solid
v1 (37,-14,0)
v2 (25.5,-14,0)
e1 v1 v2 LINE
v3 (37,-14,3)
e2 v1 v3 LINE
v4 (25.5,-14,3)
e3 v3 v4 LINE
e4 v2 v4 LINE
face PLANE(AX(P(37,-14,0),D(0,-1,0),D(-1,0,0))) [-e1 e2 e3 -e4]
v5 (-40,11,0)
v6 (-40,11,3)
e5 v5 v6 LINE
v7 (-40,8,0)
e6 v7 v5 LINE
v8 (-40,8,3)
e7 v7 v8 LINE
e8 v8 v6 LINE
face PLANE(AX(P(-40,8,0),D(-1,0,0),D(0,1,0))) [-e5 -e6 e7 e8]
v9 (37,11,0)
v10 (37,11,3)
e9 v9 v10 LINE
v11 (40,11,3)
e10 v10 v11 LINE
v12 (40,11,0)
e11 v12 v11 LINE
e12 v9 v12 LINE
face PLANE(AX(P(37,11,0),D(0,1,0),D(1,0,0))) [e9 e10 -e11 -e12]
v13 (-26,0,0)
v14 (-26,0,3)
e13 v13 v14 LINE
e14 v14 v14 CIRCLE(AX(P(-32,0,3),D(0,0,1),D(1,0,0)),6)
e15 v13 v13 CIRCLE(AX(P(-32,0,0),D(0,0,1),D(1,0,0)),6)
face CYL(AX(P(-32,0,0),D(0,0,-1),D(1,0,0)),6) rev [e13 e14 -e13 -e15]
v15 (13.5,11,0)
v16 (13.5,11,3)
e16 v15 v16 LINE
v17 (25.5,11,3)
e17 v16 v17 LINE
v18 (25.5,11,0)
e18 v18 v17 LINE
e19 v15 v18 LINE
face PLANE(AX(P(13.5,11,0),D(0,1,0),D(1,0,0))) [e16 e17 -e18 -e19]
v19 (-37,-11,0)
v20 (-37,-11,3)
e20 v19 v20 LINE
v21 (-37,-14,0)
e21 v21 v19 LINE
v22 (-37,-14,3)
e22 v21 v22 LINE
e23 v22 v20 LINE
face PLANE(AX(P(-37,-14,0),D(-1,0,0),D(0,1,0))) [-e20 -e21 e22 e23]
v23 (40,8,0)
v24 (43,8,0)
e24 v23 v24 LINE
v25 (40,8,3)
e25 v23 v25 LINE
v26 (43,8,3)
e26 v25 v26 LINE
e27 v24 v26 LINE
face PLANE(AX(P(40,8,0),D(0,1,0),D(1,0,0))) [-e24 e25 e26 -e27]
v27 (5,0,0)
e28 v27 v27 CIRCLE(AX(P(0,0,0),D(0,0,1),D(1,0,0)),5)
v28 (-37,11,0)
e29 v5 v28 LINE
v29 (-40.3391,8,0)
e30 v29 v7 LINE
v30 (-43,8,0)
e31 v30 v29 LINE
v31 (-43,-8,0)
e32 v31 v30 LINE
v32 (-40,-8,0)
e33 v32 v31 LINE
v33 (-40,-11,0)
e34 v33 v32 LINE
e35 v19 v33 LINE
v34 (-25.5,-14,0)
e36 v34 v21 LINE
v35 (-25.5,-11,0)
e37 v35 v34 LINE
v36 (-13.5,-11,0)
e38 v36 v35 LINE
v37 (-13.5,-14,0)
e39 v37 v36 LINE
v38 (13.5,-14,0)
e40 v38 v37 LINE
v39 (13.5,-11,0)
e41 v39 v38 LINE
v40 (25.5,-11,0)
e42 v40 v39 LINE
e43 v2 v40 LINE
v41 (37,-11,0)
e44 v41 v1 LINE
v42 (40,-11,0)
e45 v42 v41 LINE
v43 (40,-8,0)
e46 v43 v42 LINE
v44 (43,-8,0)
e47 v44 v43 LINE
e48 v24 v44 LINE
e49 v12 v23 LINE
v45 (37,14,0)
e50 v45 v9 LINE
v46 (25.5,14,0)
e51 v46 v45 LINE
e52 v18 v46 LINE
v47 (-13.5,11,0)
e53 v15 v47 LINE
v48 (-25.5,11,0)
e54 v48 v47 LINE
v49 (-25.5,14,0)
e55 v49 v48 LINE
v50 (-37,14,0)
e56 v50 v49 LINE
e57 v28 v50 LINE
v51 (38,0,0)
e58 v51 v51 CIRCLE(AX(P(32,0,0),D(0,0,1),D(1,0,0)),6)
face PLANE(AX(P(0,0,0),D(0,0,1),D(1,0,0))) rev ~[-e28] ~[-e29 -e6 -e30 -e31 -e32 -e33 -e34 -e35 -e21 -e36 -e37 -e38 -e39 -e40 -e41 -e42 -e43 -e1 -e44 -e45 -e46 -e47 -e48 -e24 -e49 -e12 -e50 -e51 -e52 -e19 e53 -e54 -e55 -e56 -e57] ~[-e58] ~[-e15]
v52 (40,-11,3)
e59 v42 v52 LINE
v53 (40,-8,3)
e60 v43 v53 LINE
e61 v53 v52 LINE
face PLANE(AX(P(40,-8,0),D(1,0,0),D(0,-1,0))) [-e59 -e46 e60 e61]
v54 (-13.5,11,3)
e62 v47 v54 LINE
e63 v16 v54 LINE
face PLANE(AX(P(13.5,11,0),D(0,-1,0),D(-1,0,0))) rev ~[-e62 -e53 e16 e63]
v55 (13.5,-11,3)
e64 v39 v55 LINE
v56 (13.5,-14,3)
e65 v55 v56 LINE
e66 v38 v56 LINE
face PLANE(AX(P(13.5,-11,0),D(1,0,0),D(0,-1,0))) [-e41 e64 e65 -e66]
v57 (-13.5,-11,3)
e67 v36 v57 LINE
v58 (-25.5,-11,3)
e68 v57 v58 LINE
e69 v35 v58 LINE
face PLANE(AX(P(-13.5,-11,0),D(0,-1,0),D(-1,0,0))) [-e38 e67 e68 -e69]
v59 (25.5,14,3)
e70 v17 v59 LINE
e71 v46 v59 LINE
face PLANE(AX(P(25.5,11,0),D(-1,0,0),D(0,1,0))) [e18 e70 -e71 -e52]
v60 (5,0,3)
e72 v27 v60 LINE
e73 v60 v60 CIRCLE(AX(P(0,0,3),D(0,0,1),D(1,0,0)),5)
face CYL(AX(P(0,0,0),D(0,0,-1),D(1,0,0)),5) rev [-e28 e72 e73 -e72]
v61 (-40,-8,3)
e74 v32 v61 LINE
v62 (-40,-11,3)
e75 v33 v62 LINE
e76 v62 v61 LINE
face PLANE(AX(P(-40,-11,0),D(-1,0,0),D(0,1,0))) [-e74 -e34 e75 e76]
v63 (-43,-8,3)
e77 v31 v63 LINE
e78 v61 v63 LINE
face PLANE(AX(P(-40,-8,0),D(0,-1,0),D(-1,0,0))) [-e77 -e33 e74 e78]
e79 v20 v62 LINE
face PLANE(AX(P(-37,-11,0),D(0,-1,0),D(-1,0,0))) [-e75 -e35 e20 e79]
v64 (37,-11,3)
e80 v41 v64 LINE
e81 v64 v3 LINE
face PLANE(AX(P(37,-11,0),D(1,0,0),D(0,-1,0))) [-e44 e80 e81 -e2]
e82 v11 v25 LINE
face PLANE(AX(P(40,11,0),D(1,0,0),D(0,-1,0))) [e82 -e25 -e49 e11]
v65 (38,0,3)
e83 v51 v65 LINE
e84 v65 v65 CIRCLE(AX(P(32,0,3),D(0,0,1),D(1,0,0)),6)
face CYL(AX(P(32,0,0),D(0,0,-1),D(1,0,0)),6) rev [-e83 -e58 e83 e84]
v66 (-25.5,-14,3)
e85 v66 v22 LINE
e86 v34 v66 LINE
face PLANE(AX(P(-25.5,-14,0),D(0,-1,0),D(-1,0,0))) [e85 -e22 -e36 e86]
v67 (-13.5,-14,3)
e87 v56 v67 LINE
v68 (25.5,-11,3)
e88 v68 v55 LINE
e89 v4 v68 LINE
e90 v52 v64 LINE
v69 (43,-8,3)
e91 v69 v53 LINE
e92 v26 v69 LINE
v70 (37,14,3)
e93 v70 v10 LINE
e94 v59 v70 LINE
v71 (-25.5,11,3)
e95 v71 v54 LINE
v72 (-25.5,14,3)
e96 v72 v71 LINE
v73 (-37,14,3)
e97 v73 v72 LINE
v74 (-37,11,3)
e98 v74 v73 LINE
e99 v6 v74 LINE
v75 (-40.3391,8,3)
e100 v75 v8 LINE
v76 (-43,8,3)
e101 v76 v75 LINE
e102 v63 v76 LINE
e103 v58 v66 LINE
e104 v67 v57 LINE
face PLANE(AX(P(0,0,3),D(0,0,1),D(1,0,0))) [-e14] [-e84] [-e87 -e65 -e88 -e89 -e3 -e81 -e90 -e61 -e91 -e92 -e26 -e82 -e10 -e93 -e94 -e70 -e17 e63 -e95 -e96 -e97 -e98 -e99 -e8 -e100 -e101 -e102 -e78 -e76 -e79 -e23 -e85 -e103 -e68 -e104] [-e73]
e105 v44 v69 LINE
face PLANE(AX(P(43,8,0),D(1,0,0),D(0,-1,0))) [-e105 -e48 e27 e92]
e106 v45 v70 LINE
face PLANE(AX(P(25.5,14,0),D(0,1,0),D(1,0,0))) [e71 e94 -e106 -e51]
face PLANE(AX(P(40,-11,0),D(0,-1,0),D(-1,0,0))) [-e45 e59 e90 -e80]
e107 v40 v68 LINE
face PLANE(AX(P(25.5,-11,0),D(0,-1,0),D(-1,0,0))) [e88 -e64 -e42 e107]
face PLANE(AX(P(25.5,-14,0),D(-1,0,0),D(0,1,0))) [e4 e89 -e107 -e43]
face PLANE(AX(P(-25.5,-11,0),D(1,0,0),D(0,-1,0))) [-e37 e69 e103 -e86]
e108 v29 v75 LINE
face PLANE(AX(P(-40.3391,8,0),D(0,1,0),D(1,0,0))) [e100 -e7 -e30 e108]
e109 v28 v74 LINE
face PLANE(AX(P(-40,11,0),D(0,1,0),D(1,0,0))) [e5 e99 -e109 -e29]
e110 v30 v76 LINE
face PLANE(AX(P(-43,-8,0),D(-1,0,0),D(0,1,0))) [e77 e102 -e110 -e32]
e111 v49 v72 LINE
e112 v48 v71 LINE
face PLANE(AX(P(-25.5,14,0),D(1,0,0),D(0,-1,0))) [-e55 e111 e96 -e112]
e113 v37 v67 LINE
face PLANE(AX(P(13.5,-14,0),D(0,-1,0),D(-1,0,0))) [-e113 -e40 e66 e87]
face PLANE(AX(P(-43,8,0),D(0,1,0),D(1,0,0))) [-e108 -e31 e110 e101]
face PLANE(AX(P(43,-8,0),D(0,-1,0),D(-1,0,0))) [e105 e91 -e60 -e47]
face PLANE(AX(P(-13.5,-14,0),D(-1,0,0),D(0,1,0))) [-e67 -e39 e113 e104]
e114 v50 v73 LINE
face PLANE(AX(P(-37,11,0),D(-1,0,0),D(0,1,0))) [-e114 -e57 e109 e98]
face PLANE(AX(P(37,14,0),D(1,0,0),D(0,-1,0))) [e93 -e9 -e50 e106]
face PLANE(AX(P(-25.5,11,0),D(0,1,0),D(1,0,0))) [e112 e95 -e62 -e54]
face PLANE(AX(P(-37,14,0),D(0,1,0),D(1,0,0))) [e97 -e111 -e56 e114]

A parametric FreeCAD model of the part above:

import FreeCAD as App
import Part
import Sketcher
Q = App.Units.Quantity

doc = App.newDocument("Part")
params = doc.addObject("Spreadsheet::Sheet", "Params")
for row, (alias, value) in enumerate([
    ("sketch1_diameter", "12 mm"),
    ("sketch1_width", "12 mm"),
    ("sketch1_diameter2", "10 mm"),
    ("sketch1_width2", "51 mm"),
    ("sketch1_width3", "3 mm"),
    ("pad1_length", "3 mm"),
], start=1):
    params.set(f"A{row}", alias)
    params.set(f"B{row}", "=" + value)
    params.setAlias(f"B{row}", alias)

body = doc.addObject("PartDesign::Body", "Body")

sketch1 = body.newObject("Sketcher::SketchObject", "Sketch")
sketch1.AttachmentSupport = (doc.getObject("XY_Plane"), [""])
sketch1.MapMode = "FlatFace"
sketch1.addGeometry([
    Part.LineSegment(App.Vector(25.5, 11, 0), App.Vector(-25.5, 11, 0)),
    Part.LineSegment(App.Vector(-25.5, 11, 0), App.Vector(-25.5, 14, 0)),
    Part.LineSegment(App.Vector(-25.5, 14, 0), App.Vector(-37, 14, 0)),
    Part.LineSegment(App.Vector(-37, 14, 0), App.Vector(-37, 11, 0)),
    Part.LineSegment(App.Vector(-37, 11, 0), App.Vector(-40, 11, 0)),
    Part.LineSegment(App.Vector(-40, 11, 0), App.Vector(-40, 8, 0)),
    Part.LineSegment(App.Vector(-40, 8, 0), App.Vector(-43, 8, 0)),
    Part.LineSegment(App.Vector(-43, 8, 0), App.Vector(-43, -8, 0)),
    Part.LineSegment(App.Vector(-43, -8, 0), App.Vector(-40, -8, 0)),
    Part.LineSegment(App.Vector(-40, -8, 0), App.Vector(-40, -11, 0)),
    Part.LineSegment(App.Vector(-40, -11, 0), App.Vector(-37, -11, 0)),
    Part.LineSegment(App.Vector(-37, -11, 0), App.Vector(-37, -14, 0)),
    Part.LineSegment(App.Vector(-37, -14, 0), App.Vector(-25.5, -14, 0)),
    Part.LineSegment(App.Vector(-25.5, -14, 0), App.Vector(-25.5, -11, 0)),
    Part.LineSegment(App.Vector(-25.5, -11, 0), App.Vector(-13.5, -11, 0)),
    Part.LineSegment(App.Vector(-13.5, -11, 0), App.Vector(-13.5, -14, 0)),
    Part.LineSegment(App.Vector(-13.5, -14, 0), App.Vector(13.5, -14, 0)),
    Part.LineSegment(App.Vector(13.5, -14, 0), App.Vector(13.5, -11, 0)),
    Part.LineSegment(App.Vector(13.5, -11, 0), App.Vector(25.5, -11, 0)),
    Part.LineSegment(App.Vector(25.5, -11, 0), App.Vector(25.5, -14, 0)),
    Part.LineSegment(App.Vector(25.5, -14, 0), App.Vector(37, -14, 0)),
    Part.LineSegment(App.Vector(37, -14, 0), App.Vector(37, -11, 0)),
    Part.LineSegment(App.Vector(37, -11, 0), App.Vector(40, -11, 0)),
    Part.LineSegment(App.Vector(40, -11, 0), App.Vector(40, -8, 0)),
    Part.LineSegment(App.Vector(40, -8, 0), App.Vector(43, -8, 0)),
    Part.LineSegment(App.Vector(43, -8, 0), App.Vector(43, 8, 0)),
    Part.LineSegment(App.Vector(43, 8, 0), App.Vector(40, 8, 0)),
    Part.LineSegment(App.Vector(40, 8, 0), App.Vector(40, 11, 0)),
    Part.LineSegment(App.Vector(40, 11, 0), App.Vector(37, 11, 0)),
    Part.LineSegment(App.Vector(37, 11, 0), App.Vector(37, 14, 0)),
    Part.LineSegment(App.Vector(37, 14, 0), App.Vector(25.5, 14, 0)),
    Part.LineSegment(App.Vector(25.5, 14, 0), App.Vector(25.5, 11, 0)),
    Part.Circle(App.Vector(-32, 0, 0), App.Vector(0, 0, 1), 6),
    Part.Circle(App.Vector(0, 0, 0), App.Vector(0, 0, 1), 5),
    Part.Circle(App.Vector(32, 0, 0), App.Vector(0, 0, 1), 6),
], False)
sketch1.addConstraint([
    Sketcher.Constraint("Coincident", 0, 2, 1, 1),
    Sketcher.Constraint("Coincident", 1, 2, 2, 1),
    Sketcher.Constraint("Coincident", 2, 2, 3, 1),
    Sketcher.Constraint("Coincident", 3, 2, 4, 1),
    Sketcher.Constraint("Coincident", 4, 2, 5, 1),
    Sketcher.Constraint("Coincident", 5, 2, 6, 1),
    Sketcher.Constraint("Coincident", 6, 2, 7, 1),
    Sketcher.Constraint("Coincident", 7, 2, 8, 1),
    Sketcher.Constraint("Coincident", 8, 2, 9, 1),
    Sketcher.Constraint("Coincident", 9, 2, 10, 1),
    Sketcher.Constraint("Coincident", 10, 2, 11, 1),
    Sketcher.Constraint("Coincident", 11, 2, 12, 1),
    Sketcher.Constraint("Coincident", 12, 2, 13, 1),
    Sketcher.Constraint("Coincident", 13, 2, 14, 1),
    Sketcher.Constraint("Coincident", 14, 2, 15, 1),
    Sketcher.Constraint("Coincident", 15, 2, 16, 1),
    Sketcher.Constraint("Coincident", 16, 2, 17, 1),
    Sketcher.Constraint("Coincident", 17, 2, 18, 1),
    Sketcher.Constraint("Coincident", 18, 2, 19, 1),
    Sketcher.Constraint("Coincident", 19, 2, 20, 1),
    Sketcher.Constraint("Coincident", 20, 2, 21, 1),
    Sketcher.Constraint("Coincident", 21, 2, 22, 1),
    Sketcher.Constraint("Coincident", 22, 2, 23, 1),
    Sketcher.Constraint("Coincident", 23, 2, 24, 1),
    Sketcher.Constraint("Coincident", 24, 2, 25, 1),
    Sketcher.Constraint("Coincident", 25, 2, 26, 1),
    Sketcher.Constraint("Coincident", 26, 2, 27, 1),
    Sketcher.Constraint("Coincident", 27, 2, 28, 1),
    Sketcher.Constraint("Coincident", 28, 2, 29, 1),
    Sketcher.Constraint("Coincident", 29, 2, 30, 1),
    Sketcher.Constraint("Coincident", 30, 2, 31, 1),
    Sketcher.Constraint("Coincident", 31, 2, 0, 1),
    Sketcher.Constraint("Horizontal", 0),
    Sketcher.Constraint("Vertical", 1),
    Sketcher.Constraint("Horizontal", 2),
    Sketcher.Constraint("Vertical", 3),
    Sketcher.Constraint("Horizontal", 4),
    Sketcher.Constraint("Vertical", 5),
    Sketcher.Constraint("Horizontal", 6),
    Sketcher.Constraint("Vertical", 7),
    Sketcher.Constraint("Horizontal", 8),
    Sketcher.Constraint("Vertical", 9),
    Sketcher.Constraint("Horizontal", 10),
    Sketcher.Constraint("Vertical", 11),
    Sketcher.Constraint("Horizontal", 12),
    Sketcher.Constraint("Vertical", 13),
    Sketcher.Constraint("Horizontal", 14),
    Sketcher.Constraint("Vertical", 15),
    Sketcher.Constraint("Horizontal", 16),
    Sketcher.Constraint("Vertical", 17),
    Sketcher.Constraint("Horizontal", 18),
    Sketcher.Constraint("Vertical", 19),
    Sketcher.Constraint("Horizontal", 20),
    Sketcher.Constraint("Vertical", 21),
    Sketcher.Constraint("Horizontal", 22),
    Sketcher.Constraint("Vertical", 23),
    Sketcher.Constraint("Horizontal", 24),
    Sketcher.Constraint("Vertical", 25),
    Sketcher.Constraint("Horizontal", 26),
    Sketcher.Constraint("Vertical", 27),
    Sketcher.Constraint("Horizontal", 28),
    Sketcher.Constraint("Vertical", 29),
    Sketcher.Constraint("Horizontal", 30),
    Sketcher.Constraint("Vertical", 31),
    Sketcher.Constraint("Coincident", 33, 3, -1, 1),
    Sketcher.Constraint("Equal", 32, 34),
    Sketcher.Constraint("Symmetric", 32, 3, 34, 3, -1, 1),
    Sketcher.Constraint("Symmetric", 0, 2, 18, 2, -1, 1),
    Sketcher.Constraint("Symmetric", 2, 2, 20, 2, -1, 1),
    Sketcher.Constraint("Symmetric", 4, 2, 22, 2, -1, 1),
    Sketcher.Constraint("Symmetric", 6, 2, 24, 2, -1, 1),
    Sketcher.Constraint("Symmetric", 8, 2, 26, 2, -1, 1),
    Sketcher.Constraint("Symmetric", 10, 2, 28, 2, -1, 1),
    Sketcher.Constraint("Symmetric", 12, 2, 30, 2, -1, 1),
    Sketcher.Constraint("Symmetric", 14, 2, 17, 2, -2),
    Sketcher.Constraint("Symmetric", 12, 2, 19, 2, -2),
    Sketcher.Constraint("Symmetric", 10, 2, 21, 2, -2),
    Sketcher.Constraint("Symmetric", 8, 2, 23, 2, -2),
    Sketcher.Constraint("PointOnObject", 32, 3, -1),
    Sketcher.Constraint("Horizontal", 0, 2, 3, 2),
    Sketcher.Constraint("Horizontal", 12, 2, 15, 2),
    Sketcher.Constraint("Equal", 4, 6),
    Sketcher.Constraint("Equal", 28, 1),
    Sketcher.Constraint("Equal", 3, 5),
    Sketcher.Constraint("Diameter", 32, Q("12 mm")),
    Sketcher.Constraint("DistanceX", 14, 1, 14, 2, Q("12 mm")),
    Sketcher.Constraint("Diameter", 33, Q("10 mm")),
    Sketcher.Constraint("DistanceX", 0, 2, 0, 1, Q("51 mm")),
    Sketcher.Constraint("DistanceX", 4, 2, 4, 1, Q("3 mm")),
    Sketcher.Constraint("DistanceY", 7, 2, 7, 1, Q("16 mm")),
    Sketcher.Constraint("DistanceX", 2, 2, 2, 1, Q("11.5 mm")),
    Sketcher.Constraint("DistanceX", 32, 3, -1, 1, Q("32 mm")),
])
sketch1.setExpression("Constraints[84]", "Params.sketch1_diameter")
sketch1.setExpression("Constraints[85]", "Params.sketch1_width")
sketch1.setExpression("Constraints[86]", "Params.sketch1_diameter2")
sketch1.setExpression("Constraints[87]", "Params.sketch1_width2")
sketch1.setExpression("Constraints[88]", "Params.sketch1_width3")
pad1 = body.newObject("PartDesign::Pad", "Pad")
pad1.Profile = sketch1
pad1.setExpression("Length", "Params.pad1_length")

doc.recompute()
